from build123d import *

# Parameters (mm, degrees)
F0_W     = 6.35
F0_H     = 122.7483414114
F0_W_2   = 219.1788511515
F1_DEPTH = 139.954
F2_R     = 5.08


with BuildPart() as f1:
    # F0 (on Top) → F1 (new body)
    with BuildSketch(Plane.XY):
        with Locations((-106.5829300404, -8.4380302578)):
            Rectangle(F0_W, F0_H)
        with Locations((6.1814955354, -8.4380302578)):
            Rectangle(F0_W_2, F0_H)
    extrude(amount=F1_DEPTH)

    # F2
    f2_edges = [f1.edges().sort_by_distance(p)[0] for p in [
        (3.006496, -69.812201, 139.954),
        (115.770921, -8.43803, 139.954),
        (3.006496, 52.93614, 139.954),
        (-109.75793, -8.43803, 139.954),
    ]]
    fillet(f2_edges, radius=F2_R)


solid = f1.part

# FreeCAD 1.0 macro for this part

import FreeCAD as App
import Part
import Sketcher

V = App.Vector
Q = App.Units.Quantity


def edges_at(feature, points):
    """Names of the edges that pass closest to the given points."""
    edges = feature.Shape.Edges
    near = lambda p: min(range(len(edges)), key=lambda i: edges[i].distToShape(Part.Vertex(*p))[0])
    return sorted({f"Edge{near(p) + 1}" for p in points})


def add_polygon(sketch, points):
    """Adds a closed chain of lines whose ends are joined by coincident constraints."""
    first, n = sketch.GeometryCount, len(points)
    for a, b in zip(points, points[1:] + points[:1]):
        sketch.addGeometry(Part.LineSegment(App.Vector(*a, 0), App.Vector(*b, 0)), False)
    for i in range(n):
        sketch.addConstraint(Sketcher.Constraint("Coincident", first + i, 2, first + (i + 1) % n, 1))

doc = App.newDocument("Part")
body = doc.addObject("PartDesign::Body", "Body")

sketch1 = body.newObject("Sketcher::SketchObject", "Sketch")
sketch1.AttachmentSupport = (doc.getObject("XY_Plane"), [""])
sketch1.MapMode = "FlatFace"
add_polygon(sketch1, [(-109.75793, 52.93614), (-109.75793, -69.812201), (115.770921, -69.812201), (115.770921, 52.93614)])
sketch1.addConstraint(Sketcher.Constraint("Vertical", 0))
sketch1.addConstraint(Sketcher.Constraint("Horizontal", 1))
sketch1.addConstraint(Sketcher.Constraint("Vertical", 2))
sketch1.addConstraint(Sketcher.Constraint("Horizontal", 3))
sketch1.addConstraint(Sketcher.Constraint("DistanceY", -1, 1, 2, 2, Q("2.0841 in")))
sketch1.addConstraint(Sketcher.Constraint("DistanceX", 1, 1, 1, 2, 225.528851))
sketch1.addConstraint(Sketcher.Constraint("DistanceY", 0, 2, 0, 1, 122.748341))
sketch1.addConstraint(Sketcher.Constraint("DistanceX", 0, 2, -1, 1, 109.75793))
pad1 = body.newObject("PartDesign::Pad", "Pad")
pad1.Profile = sketch1
pad1.Length = Q("5.51 in")
doc.recompute()

fillet = body.newObject("PartDesign::Fillet", "Fillet")
fillet.Base = (pad1, edges_at(pad1, [
    (3.006, -69.812, 139.954),
    (115.771, -8.438, 139.954),
    (3.006, 52.936, 139.954),
    (-109.758, -8.438, 139.954),
]))
fillet.Radius = Q("0.2 in")

doc.recompute()
